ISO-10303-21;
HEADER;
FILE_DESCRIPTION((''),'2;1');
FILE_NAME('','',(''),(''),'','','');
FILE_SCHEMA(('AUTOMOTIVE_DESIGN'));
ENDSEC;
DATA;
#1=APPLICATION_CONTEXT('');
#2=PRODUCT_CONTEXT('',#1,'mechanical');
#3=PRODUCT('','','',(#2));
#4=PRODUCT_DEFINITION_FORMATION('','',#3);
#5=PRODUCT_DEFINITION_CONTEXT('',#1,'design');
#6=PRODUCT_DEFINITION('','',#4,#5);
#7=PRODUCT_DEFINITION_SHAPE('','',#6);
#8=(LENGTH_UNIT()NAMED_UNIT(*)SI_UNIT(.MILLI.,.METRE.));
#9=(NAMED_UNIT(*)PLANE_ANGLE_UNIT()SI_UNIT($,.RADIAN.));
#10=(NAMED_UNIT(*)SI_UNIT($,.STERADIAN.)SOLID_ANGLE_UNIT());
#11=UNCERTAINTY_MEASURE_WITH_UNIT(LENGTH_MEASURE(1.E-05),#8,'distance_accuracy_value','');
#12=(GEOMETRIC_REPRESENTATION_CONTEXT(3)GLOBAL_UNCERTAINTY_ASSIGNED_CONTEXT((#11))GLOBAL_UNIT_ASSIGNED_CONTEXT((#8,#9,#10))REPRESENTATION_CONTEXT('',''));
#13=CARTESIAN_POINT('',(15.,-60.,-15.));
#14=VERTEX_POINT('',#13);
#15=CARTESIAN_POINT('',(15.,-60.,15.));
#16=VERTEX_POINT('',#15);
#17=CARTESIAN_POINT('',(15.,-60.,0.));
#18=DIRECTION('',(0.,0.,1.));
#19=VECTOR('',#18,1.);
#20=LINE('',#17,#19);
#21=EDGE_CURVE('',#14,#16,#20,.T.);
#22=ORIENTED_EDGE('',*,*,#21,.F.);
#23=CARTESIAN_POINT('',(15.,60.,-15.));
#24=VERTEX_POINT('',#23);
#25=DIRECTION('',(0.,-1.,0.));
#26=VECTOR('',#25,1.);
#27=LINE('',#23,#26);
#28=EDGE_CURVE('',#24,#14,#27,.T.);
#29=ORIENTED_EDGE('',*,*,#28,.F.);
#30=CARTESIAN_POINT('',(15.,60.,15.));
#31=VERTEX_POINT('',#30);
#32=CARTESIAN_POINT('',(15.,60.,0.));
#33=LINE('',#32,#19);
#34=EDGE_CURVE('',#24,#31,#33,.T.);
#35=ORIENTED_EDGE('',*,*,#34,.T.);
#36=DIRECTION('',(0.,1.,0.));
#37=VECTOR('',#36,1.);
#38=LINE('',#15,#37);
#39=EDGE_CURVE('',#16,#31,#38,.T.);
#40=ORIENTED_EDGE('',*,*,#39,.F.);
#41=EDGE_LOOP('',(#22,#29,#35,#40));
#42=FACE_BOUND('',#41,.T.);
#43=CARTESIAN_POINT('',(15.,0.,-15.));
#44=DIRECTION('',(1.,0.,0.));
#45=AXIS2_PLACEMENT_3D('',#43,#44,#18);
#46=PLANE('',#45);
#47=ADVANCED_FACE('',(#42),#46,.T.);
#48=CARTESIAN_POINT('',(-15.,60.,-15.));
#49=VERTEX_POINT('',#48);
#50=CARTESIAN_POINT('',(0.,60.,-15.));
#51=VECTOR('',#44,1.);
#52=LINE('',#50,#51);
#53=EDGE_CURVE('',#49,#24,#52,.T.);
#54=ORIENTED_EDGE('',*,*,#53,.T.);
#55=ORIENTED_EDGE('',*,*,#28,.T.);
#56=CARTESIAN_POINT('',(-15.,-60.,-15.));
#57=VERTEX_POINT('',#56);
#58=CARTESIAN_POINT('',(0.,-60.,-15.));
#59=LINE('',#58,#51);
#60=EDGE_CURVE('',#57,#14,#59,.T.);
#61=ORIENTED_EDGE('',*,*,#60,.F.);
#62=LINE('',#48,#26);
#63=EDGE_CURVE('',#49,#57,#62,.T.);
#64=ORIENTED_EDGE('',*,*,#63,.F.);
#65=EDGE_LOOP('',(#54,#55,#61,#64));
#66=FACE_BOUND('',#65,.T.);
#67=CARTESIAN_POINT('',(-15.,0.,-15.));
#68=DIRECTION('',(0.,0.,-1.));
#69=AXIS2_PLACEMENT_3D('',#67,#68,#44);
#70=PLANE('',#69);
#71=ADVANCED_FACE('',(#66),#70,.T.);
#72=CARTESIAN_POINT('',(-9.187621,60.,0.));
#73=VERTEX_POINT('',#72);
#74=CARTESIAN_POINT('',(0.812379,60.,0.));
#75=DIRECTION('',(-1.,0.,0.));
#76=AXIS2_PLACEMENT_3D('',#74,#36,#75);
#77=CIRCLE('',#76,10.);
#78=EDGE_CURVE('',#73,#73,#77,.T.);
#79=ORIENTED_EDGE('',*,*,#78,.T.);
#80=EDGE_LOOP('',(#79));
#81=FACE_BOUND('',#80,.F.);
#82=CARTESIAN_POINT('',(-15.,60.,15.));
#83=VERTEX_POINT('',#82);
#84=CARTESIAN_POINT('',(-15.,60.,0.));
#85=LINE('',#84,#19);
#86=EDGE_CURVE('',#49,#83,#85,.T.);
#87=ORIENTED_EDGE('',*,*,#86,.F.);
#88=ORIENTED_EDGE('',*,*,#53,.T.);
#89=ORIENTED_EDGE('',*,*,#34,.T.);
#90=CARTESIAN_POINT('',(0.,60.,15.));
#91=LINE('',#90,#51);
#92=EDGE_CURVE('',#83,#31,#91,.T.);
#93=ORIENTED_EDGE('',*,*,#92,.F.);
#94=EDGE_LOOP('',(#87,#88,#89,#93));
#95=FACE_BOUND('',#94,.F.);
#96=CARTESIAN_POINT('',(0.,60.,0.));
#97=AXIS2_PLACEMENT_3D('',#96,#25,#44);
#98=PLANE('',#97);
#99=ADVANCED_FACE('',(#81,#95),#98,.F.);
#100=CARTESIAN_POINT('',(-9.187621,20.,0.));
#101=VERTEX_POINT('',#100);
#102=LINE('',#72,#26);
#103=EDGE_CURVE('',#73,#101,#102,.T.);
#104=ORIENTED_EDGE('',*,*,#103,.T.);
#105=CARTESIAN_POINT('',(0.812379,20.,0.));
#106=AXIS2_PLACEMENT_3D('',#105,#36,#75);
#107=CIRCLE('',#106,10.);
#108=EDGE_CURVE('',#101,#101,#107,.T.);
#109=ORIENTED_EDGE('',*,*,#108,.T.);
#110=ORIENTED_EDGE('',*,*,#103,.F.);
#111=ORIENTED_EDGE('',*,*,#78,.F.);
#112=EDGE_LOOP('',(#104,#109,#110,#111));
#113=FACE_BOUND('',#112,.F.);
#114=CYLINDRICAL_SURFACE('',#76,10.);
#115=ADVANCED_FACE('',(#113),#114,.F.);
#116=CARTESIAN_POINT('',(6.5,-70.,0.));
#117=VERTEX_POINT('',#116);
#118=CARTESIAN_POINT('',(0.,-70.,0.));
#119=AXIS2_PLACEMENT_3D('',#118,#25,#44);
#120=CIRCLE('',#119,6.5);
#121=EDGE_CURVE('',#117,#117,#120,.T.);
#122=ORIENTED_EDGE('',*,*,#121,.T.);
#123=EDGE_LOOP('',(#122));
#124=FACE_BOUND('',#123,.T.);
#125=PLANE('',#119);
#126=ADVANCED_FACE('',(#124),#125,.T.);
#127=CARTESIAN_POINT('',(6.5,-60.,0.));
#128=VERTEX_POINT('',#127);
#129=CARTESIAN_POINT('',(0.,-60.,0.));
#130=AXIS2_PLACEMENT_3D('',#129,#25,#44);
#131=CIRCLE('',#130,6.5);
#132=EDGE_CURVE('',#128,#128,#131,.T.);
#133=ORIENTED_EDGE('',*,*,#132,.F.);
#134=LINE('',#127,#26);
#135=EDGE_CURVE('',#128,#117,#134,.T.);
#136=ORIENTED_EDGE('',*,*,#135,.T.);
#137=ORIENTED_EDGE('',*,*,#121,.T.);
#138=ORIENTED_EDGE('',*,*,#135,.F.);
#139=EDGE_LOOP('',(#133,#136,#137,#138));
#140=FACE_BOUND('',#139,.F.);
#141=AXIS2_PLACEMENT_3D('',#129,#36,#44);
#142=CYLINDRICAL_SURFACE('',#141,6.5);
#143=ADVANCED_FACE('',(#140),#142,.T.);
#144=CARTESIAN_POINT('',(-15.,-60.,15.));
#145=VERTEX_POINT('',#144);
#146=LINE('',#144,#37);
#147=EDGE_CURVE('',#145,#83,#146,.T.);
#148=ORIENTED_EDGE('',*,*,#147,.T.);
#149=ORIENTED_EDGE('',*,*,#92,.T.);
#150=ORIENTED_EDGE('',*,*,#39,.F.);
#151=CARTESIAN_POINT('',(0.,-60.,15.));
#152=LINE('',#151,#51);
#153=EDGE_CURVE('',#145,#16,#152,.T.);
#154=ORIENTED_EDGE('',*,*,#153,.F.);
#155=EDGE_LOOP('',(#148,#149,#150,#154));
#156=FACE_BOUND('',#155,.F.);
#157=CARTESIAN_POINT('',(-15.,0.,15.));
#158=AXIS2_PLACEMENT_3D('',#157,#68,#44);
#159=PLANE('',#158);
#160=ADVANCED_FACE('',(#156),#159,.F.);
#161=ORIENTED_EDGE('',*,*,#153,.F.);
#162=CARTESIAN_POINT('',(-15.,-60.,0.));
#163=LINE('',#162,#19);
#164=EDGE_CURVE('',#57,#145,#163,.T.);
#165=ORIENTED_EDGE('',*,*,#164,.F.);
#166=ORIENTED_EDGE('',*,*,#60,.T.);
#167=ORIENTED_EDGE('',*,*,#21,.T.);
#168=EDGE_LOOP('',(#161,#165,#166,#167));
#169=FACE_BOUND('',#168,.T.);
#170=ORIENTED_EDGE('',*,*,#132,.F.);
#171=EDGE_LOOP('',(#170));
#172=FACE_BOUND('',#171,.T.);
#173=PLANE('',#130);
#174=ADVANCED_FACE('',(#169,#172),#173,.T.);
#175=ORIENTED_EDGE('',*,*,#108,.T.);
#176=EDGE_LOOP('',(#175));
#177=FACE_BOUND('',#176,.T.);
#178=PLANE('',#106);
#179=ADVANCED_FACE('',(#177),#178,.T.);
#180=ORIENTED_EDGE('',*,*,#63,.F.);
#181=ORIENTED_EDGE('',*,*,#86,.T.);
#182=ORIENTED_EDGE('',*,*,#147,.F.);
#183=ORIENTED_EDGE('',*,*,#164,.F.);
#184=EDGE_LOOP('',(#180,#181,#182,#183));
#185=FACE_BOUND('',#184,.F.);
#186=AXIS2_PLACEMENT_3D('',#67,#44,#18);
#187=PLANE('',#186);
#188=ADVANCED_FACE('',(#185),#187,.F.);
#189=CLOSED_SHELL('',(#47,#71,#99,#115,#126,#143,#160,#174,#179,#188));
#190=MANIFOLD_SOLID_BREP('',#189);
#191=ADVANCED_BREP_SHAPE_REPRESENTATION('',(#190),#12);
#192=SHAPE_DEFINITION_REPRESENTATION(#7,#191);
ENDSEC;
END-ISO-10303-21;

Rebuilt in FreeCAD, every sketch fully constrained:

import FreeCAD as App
import Part
import Sketcher

V = App.Vector
Q = App.Units.Quantity


def add_polygon(sketch, points):
    """Adds a closed chain of lines whose ends are joined by coincident constraints."""
    first, n = sketch.GeometryCount, len(points)
    for a, b in zip(points, points[1:] + points[:1]):
        sketch.addGeometry(Part.LineSegment(App.Vector(*a, 0), App.Vector(*b, 0)), False)
    for i in range(n):
        sketch.addConstraint(Sketcher.Constraint("Coincident", first + i, 2, first + (i + 1) % n, 1))

doc = App.newDocument("Part")
params = doc.addObject("Spreadsheet::Sheet", "Params")
for row, (alias, value) in enumerate([
    ("sketch1_width", "30 mm"),
    ("pad1_length", "120 mm"),
    ("sketch2_diameter", "13 mm"),
    ("pad2_length", "10 mm"),
    ("sketch3_diameter", "20 mm"),
    ("pocket1_length", "40 mm"),
], start=1):
    params.set(f"A{row}", alias)
    params.set(f"B{row}", "=" + value)
    params.setAlias(f"B{row}", alias)

body = doc.addObject("PartDesign::Body", "Body")

sketch1 = body.newObject("Sketcher::SketchObject", "Sketch")
sketch1.AttachmentSupport = (doc.getObject("XZ_Plane"), [""])
sketch1.MapMode = "FlatFace"
add_polygon(sketch1, [(-15, 15), (-15, -15), (15, -15), (15, 15)])
sketch1.addConstraint([
    Sketcher.Constraint("Vertical", 0),
    Sketcher.Constraint("Horizontal", 1),
    Sketcher.Constraint("Vertical", 2),
    Sketcher.Constraint("Horizontal", 3),
    Sketcher.Constraint("Symmetric", 0, 2, 2, 2, -1, 1),
    Sketcher.Constraint("Equal", 3, 0),
    Sketcher.Constraint("DistanceX", 1, 1, 1, 2, Q("30 mm")),
])
sketch1.setExpression("Constraints[10]", "Params.sketch1_width")
pad1 = body.newObject("PartDesign::Pad", "Pad")
pad1.Profile = sketch1
pad1.setExpression("Length", "Params.pad1_length")
pad1.Midplane = True

sketch2 = body.newObject("Sketcher::SketchObject", "Sketch001")
sketch2.AttachmentSupport = (doc.getObject("XZ_Plane"), [""])
sketch2.MapMode = "FlatFace"
sketch2.AttachmentOffset = App.Placement(V(0, 0, 60), App.Rotation())
sketch2.addGeometry(Part.Circle(V(0, 0, 0), V(0, 0, 1), 6), False)
sketch2.addConstraint([
    Sketcher.Constraint("Coincident", 0, 3, -1, 1),
    Sketcher.Constraint("Diameter", 0, Q("13 mm")),
])
sketch2.setExpression("Constraints[1]", "Params.sketch2_diameter")
pad2 = body.newObject("PartDesign::Pad", "Pad001")
pad2.Profile = sketch2
pad2.setExpression("Length", "Params.pad2_length")

sketch3 = body.newObject("Sketcher::SketchObject", "Sketch002")
sketch3.AttachmentSupport = (doc.getObject("XZ_Plane"), [""])
sketch3.MapMode = "FlatFace"
sketch3.AttachmentOffset = App.Placement(V(0, 0, -60), App.Rotation())
sketch3.addGeometry(Part.Circle(V(1, 0, 0), V(0, 0, 1), 10), False)
sketch3.addConstraint([
    Sketcher.Constraint("PointOnObject", 0, 3, -1),
    Sketcher.Constraint("Diameter", 0, Q("20 mm")),
    Sketcher.Constraint("DistanceX", -1, 1, 0, 3, Q("0.812379 mm")),
])
sketch3.setExpression("Constraints[1]", "Params.sketch3_diameter")
pocket1 = body.newObject("PartDesign::Pocket", "Pocket")
pocket1.Profile = sketch3
pocket1.setExpression("Length", "Params.pocket1_length")
pocket1.Reversed = True

doc.recompute()
